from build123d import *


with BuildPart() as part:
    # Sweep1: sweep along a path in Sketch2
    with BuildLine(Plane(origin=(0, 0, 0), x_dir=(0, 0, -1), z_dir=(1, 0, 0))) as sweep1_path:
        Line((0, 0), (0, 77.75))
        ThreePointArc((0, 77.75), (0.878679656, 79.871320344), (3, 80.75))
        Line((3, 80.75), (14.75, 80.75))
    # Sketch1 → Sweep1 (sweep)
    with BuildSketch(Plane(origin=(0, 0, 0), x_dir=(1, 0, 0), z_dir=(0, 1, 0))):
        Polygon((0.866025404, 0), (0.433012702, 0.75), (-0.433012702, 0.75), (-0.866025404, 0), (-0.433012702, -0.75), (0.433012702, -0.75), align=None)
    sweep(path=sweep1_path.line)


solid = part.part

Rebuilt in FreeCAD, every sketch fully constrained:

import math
import FreeCAD as App
import Part
import Sketcher

V = App.Vector
Q = App.Units.Quantity


def add_polygon(sketch, points):
    """Adds a closed chain of lines whose ends are joined by coincident constraints."""
    first, n = sketch.GeometryCount, len(points)
    for a, b in zip(points, points[1:] + points[:1]):
        sketch.addGeometry(Part.LineSegment(App.Vector(*a, 0), App.Vector(*b, 0)), False)
    for i in range(n):
        sketch.addConstraint(Sketcher.Constraint("Coincident", first + i, 2, first + (i + 1) % n, 1))

doc = App.newDocument("Part")
params = doc.addObject("Spreadsheet::Sheet", "Params")
for row, (alias, value) in enumerate([
    ("sketch2_radius", "3 mm"),
    ("sketch2_width", "77.75 mm"),
    ("sketch2_height", "11.75 mm"),
], start=1):
    params.set(f"A{row}", alias)
    params.set(f"B{row}", "=" + value)
    params.setAlias(f"B{row}", alias)

body = doc.addObject("PartDesign::Body", "Body")

sketch1 = body.newObject("Sketcher::SketchObject", "Sketch")
sketch1.AttachmentSupport = (doc.getObject("XZ_Plane"), [""])
sketch1.MapMode = "FlatFace"
add_polygon(sketch1, [(0.9, 0), (0.4, -0.8), (-0.4, -0.8), (-0.9, 0), (-0.4, 0.8), (0.4, 0.8)])
sketch1.addConstraint(Sketcher.Constraint("Horizontal", 1))
sketch1.addConstraint(Sketcher.Constraint("Horizontal", 4))
sketch1.addConstraint(Sketcher.Constraint("Symmetric", 0, 2, 3, 2, -1, 1))
sketch1.addConstraint(Sketcher.Constraint("Symmetric", 2, 2, 5, 2, -1, 1))
sketch1.addConstraint(Sketcher.Constraint("PointOnObject", 2, 2, -1))
sketch1.addConstraint(Sketcher.Constraint("Parallel", 2, 5))
sketch1.addConstraint(Sketcher.Constraint("Vertical", 1, 2, 3, 2))
sketch1.addConstraint(Sketcher.Constraint("Angle", 0, Q("-120 deg")))
sketch1.addConstraint(Sketcher.Constraint("DistanceY", 1, 2, 3, 2, 1.5))
sketch1.addConstraint(Sketcher.Constraint("DistanceX", 1, 2, 1, 1, 0.866025))

sketch2 = body.newObject("Sketcher::SketchObject", "Sketch001")
sketch2.AttachmentSupport = (doc.getObject("YZ_Plane"), [""])
sketch2.MapMode = "FlatFace"
sketch2.addGeometry(Part.LineSegment(V(0, 0, 0), V(77.8, 0, 0)), False)
sketch2.addGeometry(Part.ArcOfCircle(Part.Circle(V(77.8, -3, 0), V(0, 0, 1), 3), math.radians(0), math.radians(90)), False)
sketch2.addGeometry(Part.LineSegment(V(80.8, -3, 0), V(80.8, -14.8, 0)), False)
sketch2.addConstraint(Sketcher.Constraint("Tangent", 0, 2, 1, 2))
sketch2.addConstraint(Sketcher.Constraint("Tangent", 1, 1, 2, 1))
sketch2.addConstraint(Sketcher.Constraint("Horizontal", 0))
sketch2.addConstraint(Sketcher.Constraint("Vertical", 2))
sketch2.addConstraint(Sketcher.Constraint("Coincident", 0, 1, -1, 1))
sketch2.addConstraint(Sketcher.Constraint("Radius", 1, 3.0))
sketch2.addConstraint(Sketcher.Constraint("DistanceX", 0, 1, 0, 2, 77.75))
sketch2.addConstraint(Sketcher.Constraint("DistanceY", 2, 2, 2, 1, 11.75))
sketch2.setExpression("Constraints[5]", "Params.sketch2_radius")
sketch2.setExpression("Constraints[6]", "Params.sketch2_width")
sketch2.setExpression("Constraints[7]", "Params.sketch2_height")
doc.recompute()

additivepipe = body.newObject("PartDesign::AdditivePipe", "AdditivePipe")
additivepipe.Profile = sketch1
additivepipe.Spine = (sketch2, ["Edge1", "Edge2", "Edge3"])

doc.recompute()
